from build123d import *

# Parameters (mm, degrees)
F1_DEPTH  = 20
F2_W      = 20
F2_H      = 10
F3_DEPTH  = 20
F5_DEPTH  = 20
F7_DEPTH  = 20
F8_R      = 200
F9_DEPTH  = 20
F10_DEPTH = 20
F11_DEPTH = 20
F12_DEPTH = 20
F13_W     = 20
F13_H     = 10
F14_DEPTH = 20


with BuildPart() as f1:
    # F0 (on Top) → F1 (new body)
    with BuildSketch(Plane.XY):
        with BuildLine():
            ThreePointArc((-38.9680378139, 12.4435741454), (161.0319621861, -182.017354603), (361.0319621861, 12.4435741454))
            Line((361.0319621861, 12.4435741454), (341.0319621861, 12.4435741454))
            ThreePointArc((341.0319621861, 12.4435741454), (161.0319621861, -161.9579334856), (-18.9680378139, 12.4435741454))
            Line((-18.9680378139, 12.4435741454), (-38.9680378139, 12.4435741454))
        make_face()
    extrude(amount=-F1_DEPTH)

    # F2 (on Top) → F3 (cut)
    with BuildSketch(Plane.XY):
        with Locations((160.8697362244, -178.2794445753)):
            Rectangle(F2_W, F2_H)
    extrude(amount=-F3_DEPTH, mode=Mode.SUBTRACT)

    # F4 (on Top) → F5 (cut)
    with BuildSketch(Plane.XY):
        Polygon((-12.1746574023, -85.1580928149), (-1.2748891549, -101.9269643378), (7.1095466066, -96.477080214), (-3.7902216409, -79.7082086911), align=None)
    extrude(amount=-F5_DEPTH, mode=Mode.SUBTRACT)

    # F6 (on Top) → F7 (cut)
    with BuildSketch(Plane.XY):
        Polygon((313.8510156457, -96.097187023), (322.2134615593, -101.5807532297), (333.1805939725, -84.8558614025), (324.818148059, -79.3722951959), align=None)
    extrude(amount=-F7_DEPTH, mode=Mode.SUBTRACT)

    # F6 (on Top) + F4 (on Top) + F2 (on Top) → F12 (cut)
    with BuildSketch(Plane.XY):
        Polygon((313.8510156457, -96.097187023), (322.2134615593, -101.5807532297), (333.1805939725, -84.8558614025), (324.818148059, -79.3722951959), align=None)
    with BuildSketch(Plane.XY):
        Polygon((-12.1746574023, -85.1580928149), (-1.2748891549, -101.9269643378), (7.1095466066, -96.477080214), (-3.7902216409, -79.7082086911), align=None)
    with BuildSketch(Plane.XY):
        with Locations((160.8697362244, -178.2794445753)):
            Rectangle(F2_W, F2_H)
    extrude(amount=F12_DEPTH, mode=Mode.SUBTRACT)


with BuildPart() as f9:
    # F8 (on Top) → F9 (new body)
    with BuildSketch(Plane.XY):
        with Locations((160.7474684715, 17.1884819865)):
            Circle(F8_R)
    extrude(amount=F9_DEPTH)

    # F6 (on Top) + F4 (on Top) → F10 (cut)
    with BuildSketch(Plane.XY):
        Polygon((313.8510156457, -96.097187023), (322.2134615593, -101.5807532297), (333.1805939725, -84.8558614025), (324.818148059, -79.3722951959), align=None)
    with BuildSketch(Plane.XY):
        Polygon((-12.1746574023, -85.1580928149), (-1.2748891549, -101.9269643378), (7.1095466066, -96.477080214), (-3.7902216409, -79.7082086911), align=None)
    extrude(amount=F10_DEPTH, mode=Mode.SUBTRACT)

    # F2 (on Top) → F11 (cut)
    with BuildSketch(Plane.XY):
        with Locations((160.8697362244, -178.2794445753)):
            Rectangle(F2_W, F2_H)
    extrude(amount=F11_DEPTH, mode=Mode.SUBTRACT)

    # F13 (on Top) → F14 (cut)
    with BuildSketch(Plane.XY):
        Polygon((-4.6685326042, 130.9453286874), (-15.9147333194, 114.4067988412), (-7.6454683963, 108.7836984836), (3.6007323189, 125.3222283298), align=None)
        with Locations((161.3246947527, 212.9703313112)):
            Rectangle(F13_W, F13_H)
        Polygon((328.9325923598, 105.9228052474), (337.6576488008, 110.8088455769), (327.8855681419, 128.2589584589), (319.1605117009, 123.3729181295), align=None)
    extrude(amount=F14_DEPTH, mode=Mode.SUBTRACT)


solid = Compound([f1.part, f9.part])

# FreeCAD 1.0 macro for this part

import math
import FreeCAD as App
import Part
import Sketcher
from FreeCAD import Vector
Q = App.Units.Quantity

doc = App.newDocument("Part")
body = doc.addObject("PartDesign::Body", "Body")

sketch1 = doc.addObject("Sketcher::SketchObject", "Sketch")
body.addObject(sketch1)
sketch1.AttachmentSupport = (doc.XY_Plane, [""])
sketch1.MapMode = "FlatFace"
sketch1.addGeometry([
    Part.ArcOfCircle(Part.Circle(Vector(161, 18, 0), Vector(0, 0, 1), 200), math.radians(-178), math.radians(-2)),
    Part.LineSegment(Vector(361, 12, 0), Vector(341, 12, 0)),
    Part.ArcOfCircle(Part.Circle(Vector(161, 18, 0), Vector(0, 0, 1), 180), math.radians(-178), math.radians(-2)),
    Part.LineSegment(Vector(-19, 12, 0), Vector(-39, 12, 0)),
], False)
sketch1.addConstraint([
    Sketcher.Constraint("Coincident", 0, 2, 1, 1),
    Sketcher.Constraint("Coincident", 1, 2, 2, 2),
    Sketcher.Constraint("Coincident", 2, 1, 3, 1),
    Sketcher.Constraint("Coincident", 3, 2, 0, 1),
    Sketcher.Constraint("Horizontal", 1),
    Sketcher.Constraint("Horizontal", 3),
    Sketcher.Constraint("Horizontal", 1, 2, 2, 1),
    Sketcher.Constraint("Vertical", 0, 3, 2, 3),
    Sketcher.Constraint("DistanceX", 1, 2, 1, 1, Q("20 mm")),
    Sketcher.Constraint("DistanceX", 0, 3, 0, 2, Q("200 mm")),
    Sketcher.Constraint("Radius", 0, Q("200.078888 mm")),
    Sketcher.Constraint("Radius", 2, Q("180.089859 mm")),
    Sketcher.Constraint("DistanceX", -1, 1, 0, 3, Q("161.031962 mm")),
    Sketcher.Constraint("DistanceY", -1, 1, 0, 3, Q("18.061534 mm")),
])
pad1 = doc.addObject("PartDesign::Pad", "Pad")
body.addObject(pad1)
pad1.Profile = sketch1
pad1.Length = 20
pad1.Reversed = True

sketch2 = doc.addObject("Sketcher::SketchObject", "Sketch001")
body.addObject(sketch2)
sketch2.AttachmentSupport = (doc.XY_Plane, [""])
sketch2.MapMode = "FlatFace"
sketch2.addGeometry([
    Part.LineSegment(Vector(151, -173, 0), Vector(151, -183, 0)),
    Part.LineSegment(Vector(151, -183, 0), Vector(171, -183, 0)),
    Part.LineSegment(Vector(171, -183, 0), Vector(171, -173, 0)),
    Part.LineSegment(Vector(171, -173, 0), Vector(151, -173, 0)),
], False)
sketch2.addConstraint([
    Sketcher.Constraint("Coincident", 0, 2, 1, 1),
    Sketcher.Constraint("Coincident", 1, 2, 2, 1),
    Sketcher.Constraint("Coincident", 2, 2, 3, 1),
    Sketcher.Constraint("Coincident", 3, 2, 0, 1),
    Sketcher.Constraint("Vertical", 0),
    Sketcher.Constraint("Horizontal", 1),
    Sketcher.Constraint("Vertical", 2),
    Sketcher.Constraint("Horizontal", 3),
    Sketcher.Constraint("DistanceX", 1, 1, 1, 2, Q("20 mm")),
    Sketcher.Constraint("DistanceY", 0, 2, 0, 1, Q("10 mm")),
    Sketcher.Constraint("DistanceX", -1, 1, 0, 2, Q("150.869736 mm")),
    Sketcher.Constraint("DistanceY", 0, 2, -1, 1, Q("183.279445 mm")),
])
pocket1 = doc.addObject("PartDesign::Pocket", "Pocket")
body.addObject(pocket1)
pocket1.Profile = sketch2
pocket1.Length = 20

sketch3 = doc.addObject("Sketcher::SketchObject", "Sketch002")
body.addObject(sketch3)
sketch3.AttachmentSupport = (doc.XY_Plane, [""])
sketch3.MapMode = "FlatFace"
sketch3.addGeometry([
    Part.LineSegment(Vector(-12, -85, 0), Vector(-1, -102, 0)),
    Part.LineSegment(Vector(-1, -102, 0), Vector(7, -96, 0)),
    Part.LineSegment(Vector(7, -96, 0), Vector(-4, -80, 0)),
    Part.LineSegment(Vector(-4, -80, 0), Vector(-12, -85, 0)),
], False)
sketch3.addConstraint([
    Sketcher.Constraint("Coincident", 0, 2, 1, 1),
    Sketcher.Constraint("Coincident", 1, 2, 2, 1),
    Sketcher.Constraint("Coincident", 2, 2, 3, 1),
    Sketcher.Constraint("Coincident", 3, 2, 0, 1),
    Sketcher.Constraint("Perpendicular", 0, 1),
    Sketcher.Constraint("Perpendicular", 1, 2),
    Sketcher.Constraint("Perpendicular", 2, 3),
    Sketcher.Constraint("Distance", 0, Q("20 mm")),
    Sketcher.Constraint("Distance", 1, Q("10 mm")),
    Sketcher.Constraint("DistanceX", 0, 2, -1, 1, Q("1.274889 mm")),
    Sketcher.Constraint("DistanceY", 1, 2, -1, 1, Q("96.47708 mm")),
    Sketcher.Constraint("DistanceX", 2, 2, -1, 1, Q("3.790222 mm")),
])
pocket2 = doc.addObject("PartDesign::Pocket", "Pocket001")
body.addObject(pocket2)
pocket2.Profile = sketch3
pocket2.Length = 20

sketch4 = doc.addObject("Sketcher::SketchObject", "Sketch003")
body.addObject(sketch4)
sketch4.AttachmentSupport = (doc.XY_Plane, [""])
sketch4.MapMode = "FlatFace"
sketch4.addGeometry([
    Part.LineSegment(Vector(314, -96, 0), Vector(322, -102, 0)),
    Part.LineSegment(Vector(322, -102, 0), Vector(333, -85, 0)),
    Part.LineSegment(Vector(333, -85, 0), Vector(325, -79, 0)),
    Part.LineSegment(Vector(325, -79, 0), Vector(314, -96, 0)),
], False)
sketch4.addConstraint([
    Sketcher.Constraint("Coincident", 0, 2, 1, 1),
    Sketcher.Constraint("Coincident", 1, 2, 2, 1),
    Sketcher.Constraint("Coincident", 2, 2, 3, 1),
    Sketcher.Constraint("Coincident", 3, 2, 0, 1),
    Sketcher.Constraint("Perpendicular", 0, 1),
    Sketcher.Constraint("Perpendicular", 1, 2),
    Sketcher.Constraint("Perpendicular", 2, 3),
    Sketcher.Constraint("Distance", 0, Q("10 mm")),
    Sketcher.Constraint("Distance", 1, Q("20 mm")),
    Sketcher.Constraint("DistanceX", -1, 1, 0, 2, Q("322.213462 mm")),
    Sketcher.Constraint("DistanceY", 1, 2, -1, 1, Q("84.855861 mm")),
    Sketcher.Constraint("DistanceX", -1, 1, 2, 2, Q("324.818148 mm")),
])
pocket3 = doc.addObject("PartDesign::Pocket", "Pocket002")
body.addObject(pocket3)
pocket3.Profile = sketch4
pocket3.Length = 20

sketch5 = doc.addObject("Sketcher::SketchObject", "Sketch004")
body.addObject(sketch5)
sketch5.AttachmentSupport = (doc.XY_Plane, [""])
sketch5.MapMode = "FlatFace"
sketch5.addGeometry([
    Part.LineSegment(Vector(314, -96, 0), Vector(322, -102, 0)),
    Part.LineSegment(Vector(322, -102, 0), Vector(333, -85, 0)),
    Part.LineSegment(Vector(333, -85, 0), Vector(325, -79, 0)),
    Part.LineSegment(Vector(325, -79, 0), Vector(314, -96, 0)),
    Part.LineSegment(Vector(-12, -85, 0), Vector(-1, -102, 0)),
    Part.LineSegment(Vector(-1, -102, 0), Vector(7, -96, 0)),
    Part.LineSegment(Vector(7, -96, 0), Vector(-4, -80, 0)),
    Part.LineSegment(Vector(-4, -80, 0), Vector(-12, -85, 0)),
    Part.LineSegment(Vector(151, -173, 0), Vector(151, -183, 0)),
    Part.LineSegment(Vector(151, -183, 0), Vector(171, -183, 0)),
    Part.LineSegment(Vector(171, -183, 0), Vector(171, -173, 0)),
    Part.LineSegment(Vector(171, -173, 0), Vector(151, -173, 0)),
], False)
sketch5.addConstraint([
    Sketcher.Constraint("Coincident", 0, 2, 1, 1),
    Sketcher.Constraint("Coincident", 1, 2, 2, 1),
    Sketcher.Constraint("Coincident", 2, 2, 3, 1),
    Sketcher.Constraint("Coincident", 3, 2, 0, 1),
    Sketcher.Constraint("Coincident", 4, 2, 5, 1),
    Sketcher.Constraint("Coincident", 5, 2, 6, 1),
    Sketcher.Constraint("Coincident", 6, 2, 7, 1),
    Sketcher.Constraint("Coincident", 7, 2, 4, 1),
    Sketcher.Constraint("Coincident", 8, 2, 9, 1),
    Sketcher.Constraint("Coincident", 9, 2, 10, 1),
    Sketcher.Constraint("Coincident", 10, 2, 11, 1),
    Sketcher.Constraint("Coincident", 11, 2, 8, 1),
    Sketcher.Constraint("Vertical", 8),
    Sketcher.Constraint("Horizontal", 9),
    Sketcher.Constraint("Vertical", 10),
    Sketcher.Constraint("Horizontal", 11),
    Sketcher.Constraint("Perpendicular", 0, 1),
    Sketcher.Constraint("Perpendicular", 1, 2),
    Sketcher.Constraint("Perpendicular", 2, 3),
    Sketcher.Constraint("Perpendicular", 4, 5),
    Sketcher.Constraint("Perpendicular", 5, 6),
    Sketcher.Constraint("Perpendicular", 6, 7),
    Sketcher.Constraint("Equal", 3, 4),
    Sketcher.Constraint("Equal", 2, 5),
    Sketcher.Constraint("DistanceX", 9, 1, 9, 2, Q("20 mm")),
    Sketcher.Constraint("DistanceY", 8, 2, 8, 1, Q("10 mm")),
    Sketcher.Constraint("Distance", 0, Q("10 mm")),
    Sketcher.Constraint("Distance", 1, Q("20 mm")),
    Sketcher.Constraint("DistanceX", 5, 2, 2, 2, Q("317.708601 mm")),
    Sketcher.Constraint("DistanceX", -1, 1, 0, 2, Q("322.213462 mm")),
    Sketcher.Constraint("DistanceY", 1, 2, -1, 1, Q("84.855861 mm")),
    Sketcher.Constraint("DistanceX", -1, 1, 2, 2, Q("324.818148 mm")),
    Sketcher.Constraint("DistanceX", 4, 2, -1, 1, Q("1.274889 mm")),
    Sketcher.Constraint("DistanceY", 5, 2, -1, 1, Q("96.47708 mm")),
    Sketcher.Constraint("DistanceX", 5, 2, 8, 2, Q("143.76019 mm")),
    Sketcher.Constraint("DistanceY", 8, 2, 4, 2, Q("81.35248 mm")),
])
pocket4 = doc.addObject("PartDesign::Pocket", "Pocket003")
body.addObject(pocket4)
pocket4.Profile = sketch5
pocket4.Length = 20
pocket4.Reversed = True
body2 = doc.addObject("PartDesign::Body", "Body001")

sketch6 = doc.addObject("Sketcher::SketchObject", "Sketch005")
body2.addObject(sketch6)
sketch6.AttachmentSupport = (doc.getObject("XY_Plane001"), [""])
sketch6.MapMode = "FlatFace"
sketch6.addGeometry(Part.Circle(Vector(161, 17, 0), Vector(0, 0, 1), 200), False)
sketch6.addConstraint([
    Sketcher.Constraint("Diameter", 0, Q("400 mm")),
    Sketcher.Constraint("DistanceX", -1, 1, 0, 3, Q("160.747468 mm")),
    Sketcher.Constraint("DistanceY", -1, 1, 0, 3, Q("17.188482 mm")),
])
pad2 = doc.addObject("PartDesign::Pad", "Pad001")
body2.addObject(pad2)
pad2.Profile = sketch6
pad2.Length = 20

sketch7 = doc.addObject("Sketcher::SketchObject", "Sketch006")
body2.addObject(sketch7)
sketch7.AttachmentSupport = (doc.getObject("XY_Plane001"), [""])
sketch7.MapMode = "FlatFace"
sketch7.addGeometry([
    Part.LineSegment(Vector(314, -96, 0), Vector(322, -102, 0)),
    Part.LineSegment(Vector(322, -102, 0), Vector(333, -85, 0)),
    Part.LineSegment(Vector(333, -85, 0), Vector(325, -79, 0)),
    Part.LineSegment(Vector(325, -79, 0), Vector(314, -96, 0)),
    Part.LineSegment(Vector(-12, -85, 0), Vector(-1, -102, 0)),
    Part.LineSegment(Vector(-1, -102, 0), Vector(7, -96, 0)),
    Part.LineSegment(Vector(7, -96, 0), Vector(-4, -80, 0)),
    Part.LineSegment(Vector(-4, -80, 0), Vector(-12, -85, 0)),
], False)
sketch7.addConstraint([
    Sketcher.Constraint("Coincident", 0, 2, 1, 1),
    Sketcher.Constraint("Coincident", 1, 2, 2, 1),
    Sketcher.Constraint("Coincident", 2, 2, 3, 1),
    Sketcher.Constraint("Coincident", 3, 2, 0, 1),
    Sketcher.Constraint("Coincident", 4, 2, 5, 1),
    Sketcher.Constraint("Coincident", 5, 2, 6, 1),
    Sketcher.Constraint("Coincident", 6, 2, 7, 1),
    Sketcher.Constraint("Coincident", 7, 2, 4, 1),
    Sketcher.Constraint("Perpendicular", 0, 1),
    Sketcher.Constraint("Perpendicular", 1, 2),
    Sketcher.Constraint("Perpendicular", 2, 3),
    Sketcher.Constraint("Perpendicular", 4, 5),
    Sketcher.Constraint("Perpendicular", 5, 6),
    Sketcher.Constraint("Perpendicular", 6, 7),
    Sketcher.Constraint("Equal", 3, 4),
    Sketcher.Constraint("Equal", 2, 5),
    Sketcher.Constraint("Distance", 0, Q("10 mm")),
    Sketcher.Constraint("Distance", 1, Q("20 mm")),
    Sketcher.Constraint("DistanceX", 5, 2, 2, 2, Q("317.708601 mm")),
    Sketcher.Constraint("DistanceX", -1, 1, 0, 2, Q("322.213462 mm")),
    Sketcher.Constraint("DistanceY", 1, 2, -1, 1, Q("84.855861 mm")),
    Sketcher.Constraint("DistanceX", -1, 1, 2, 2, Q("324.818148 mm")),
    Sketcher.Constraint("DistanceX", 4, 2, -1, 1, Q("1.274889 mm")),
    Sketcher.Constraint("DistanceY", 5, 2, -1, 1, Q("96.47708 mm")),
])
pocket5 = doc.addObject("PartDesign::Pocket", "Pocket004")
body2.addObject(pocket5)
pocket5.Profile = sketch7
pocket5.Length = 20
pocket5.Reversed = True

sketch8 = doc.addObject("Sketcher::SketchObject", "Sketch007")
body2.addObject(sketch8)
sketch8.AttachmentSupport = (doc.getObject("XY_Plane001"), [""])
sketch8.MapMode = "FlatFace"
sketch8.addGeometry([
    Part.LineSegment(Vector(151, -173, 0), Vector(151, -183, 0)),
    Part.LineSegment(Vector(151, -183, 0), Vector(171, -183, 0)),
    Part.LineSegment(Vector(171, -183, 0), Vector(171, -173, 0)),
    Part.LineSegment(Vector(171, -173, 0), Vector(151, -173, 0)),
], False)
sketch8.addConstraint([
    Sketcher.Constraint("Coincident", 0, 2, 1, 1),
    Sketcher.Constraint("Coincident", 1, 2, 2, 1),
    Sketcher.Constraint("Coincident", 2, 2, 3, 1),
    Sketcher.Constraint("Coincident", 3, 2, 0, 1),
    Sketcher.Constraint("Vertical", 0),
    Sketcher.Constraint("Horizontal", 1),
    Sketcher.Constraint("Vertical", 2),
    Sketcher.Constraint("Horizontal", 3),
    Sketcher.Constraint("DistanceX", 1, 1, 1, 2, Q("20 mm")),
    Sketcher.Constraint("DistanceY", 0, 2, 0, 1, Q("10 mm")),
    Sketcher.Constraint("DistanceX", -1, 1, 0, 2, Q("150.869736 mm")),
    Sketcher.Constraint("DistanceY", 0, 2, -1, 1, Q("183.279445 mm")),
])
pocket6 = doc.addObject("PartDesign::Pocket", "Pocket005")
body2.addObject(pocket6)
pocket6.Profile = sketch8
pocket6.Length = 20
pocket6.Reversed = True

sketch9 = doc.addObject("Sketcher::SketchObject", "Sketch008")
body2.addObject(sketch9)
sketch9.AttachmentSupport = (doc.getObject("XY_Plane001"), [""])
sketch9.MapMode = "FlatFace"
sketch9.addGeometry([
    Part.LineSegment(Vector(-5, 131, 0), Vector(-16, 114, 0)),
    Part.LineSegment(Vector(-16, 114, 0), Vector(-8, 109, 0)),
    Part.LineSegment(Vector(-8, 109, 0), Vector(4, 125, 0)),
    Part.LineSegment(Vector(4, 125, 0), Vector(-5, 131, 0)),
    Part.LineSegment(Vector(151, 218, 0), Vector(151, 208, 0)),
    Part.LineSegment(Vector(151, 208, 0), Vector(171, 208, 0)),
    Part.LineSegment(Vector(171, 208, 0), Vector(171, 218, 0)),
    Part.LineSegment(Vector(171, 218, 0), Vector(151, 218, 0)),
    Part.LineSegment(Vector(329, 106, 0), Vector(338, 111, 0)),
    Part.LineSegment(Vector(338, 111, 0), Vector(328, 128, 0)),
    Part.LineSegment(Vector(328, 128, 0), Vector(319, 123, 0)),
    Part.LineSegment(Vector(319, 123, 0), Vector(329, 106, 0)),
], False)
sketch9.addConstraint([
    Sketcher.Constraint("Coincident", 0, 2, 1, 1),
    Sketcher.Constraint("Coincident", 1, 2, 2, 1),
    Sketcher.Constraint("Coincident", 2, 2, 3, 1),
    Sketcher.Constraint("Coincident", 3, 2, 0, 1),
    Sketcher.Constraint("Coincident", 4, 2, 5, 1),
    Sketcher.Constraint("Coincident", 5, 2, 6, 1),
    Sketcher.Constraint("Coincident", 6, 2, 7, 1),
    Sketcher.Constraint("Coincident", 7, 2, 4, 1),
    Sketcher.Constraint("Coincident", 8, 2, 9, 1),
    Sketcher.Constraint("Coincident", 9, 2, 10, 1),
    Sketcher.Constraint("Coincident", 10, 2, 11, 1),
    Sketcher.Constraint("Coincident", 11, 2, 8, 1),
    Sketcher.Constraint("Vertical", 4),
    Sketcher.Constraint("Horizontal", 5),
    Sketcher.Constraint("Vertical", 6),
    Sketcher.Constraint("Horizontal", 7),
    Sketcher.Constraint("Perpendicular", 0, 1),
    Sketcher.Constraint("Perpendicular", 1, 2),
    Sketcher.Constraint("Perpendicular", 2, 3),
    Sketcher.Constraint("Perpendicular", 8, 9),
    Sketcher.Constraint("Perpendicular", 9, 10),
    Sketcher.Constraint("Perpendicular", 10, 11),
    Sketcher.Constraint("Equal", 3, 8),
    Sketcher.Constraint("Equal", 2, 9),
    Sketcher.Constraint("DistanceX", 5, 1, 5, 2, Q("20 mm")),
    Sketcher.Constraint("DistanceY", 4, 2, 4, 1, Q("10 mm")),
    Sketcher.Constraint("Distance", 0, Q("20 mm")),
    Sketcher.Constraint("Distance", 1, Q("10 mm")),
    Sketcher.Constraint("DistanceY", -1, 1, 0, 2, Q("114.406799 mm")),
    Sketcher.Constraint("DistanceY", -1, 1, 1, 2, Q("108.783698 mm")),
    Sketcher.Constraint("DistanceX", 1, 2, -1, 1, Q("7.645468 mm")),
    Sketcher.Constraint("DistanceY", -1, 1, 4, 2, Q("207.970331 mm")),
    Sketcher.Constraint("DistanceX", -1, 1, 8, 2, Q("337.657649 mm")),
    Sketcher.Constraint("DistanceX", -1, 1, 9, 2, Q("327.885568 mm")),
    Sketcher.Constraint("DistanceY", -1, 1, 9, 2, Q("128.258958 mm")),
    Sketcher.Constraint("DistanceX", 0, 2, 4, 2, Q("167.239428 mm")),
])
pocket7 = doc.addObject("PartDesign::Pocket", "Pocket006")
body2.addObject(pocket7)
pocket7.Profile = sketch9
pocket7.Length = 20
pocket7.Reversed = True

doc.recompute()
